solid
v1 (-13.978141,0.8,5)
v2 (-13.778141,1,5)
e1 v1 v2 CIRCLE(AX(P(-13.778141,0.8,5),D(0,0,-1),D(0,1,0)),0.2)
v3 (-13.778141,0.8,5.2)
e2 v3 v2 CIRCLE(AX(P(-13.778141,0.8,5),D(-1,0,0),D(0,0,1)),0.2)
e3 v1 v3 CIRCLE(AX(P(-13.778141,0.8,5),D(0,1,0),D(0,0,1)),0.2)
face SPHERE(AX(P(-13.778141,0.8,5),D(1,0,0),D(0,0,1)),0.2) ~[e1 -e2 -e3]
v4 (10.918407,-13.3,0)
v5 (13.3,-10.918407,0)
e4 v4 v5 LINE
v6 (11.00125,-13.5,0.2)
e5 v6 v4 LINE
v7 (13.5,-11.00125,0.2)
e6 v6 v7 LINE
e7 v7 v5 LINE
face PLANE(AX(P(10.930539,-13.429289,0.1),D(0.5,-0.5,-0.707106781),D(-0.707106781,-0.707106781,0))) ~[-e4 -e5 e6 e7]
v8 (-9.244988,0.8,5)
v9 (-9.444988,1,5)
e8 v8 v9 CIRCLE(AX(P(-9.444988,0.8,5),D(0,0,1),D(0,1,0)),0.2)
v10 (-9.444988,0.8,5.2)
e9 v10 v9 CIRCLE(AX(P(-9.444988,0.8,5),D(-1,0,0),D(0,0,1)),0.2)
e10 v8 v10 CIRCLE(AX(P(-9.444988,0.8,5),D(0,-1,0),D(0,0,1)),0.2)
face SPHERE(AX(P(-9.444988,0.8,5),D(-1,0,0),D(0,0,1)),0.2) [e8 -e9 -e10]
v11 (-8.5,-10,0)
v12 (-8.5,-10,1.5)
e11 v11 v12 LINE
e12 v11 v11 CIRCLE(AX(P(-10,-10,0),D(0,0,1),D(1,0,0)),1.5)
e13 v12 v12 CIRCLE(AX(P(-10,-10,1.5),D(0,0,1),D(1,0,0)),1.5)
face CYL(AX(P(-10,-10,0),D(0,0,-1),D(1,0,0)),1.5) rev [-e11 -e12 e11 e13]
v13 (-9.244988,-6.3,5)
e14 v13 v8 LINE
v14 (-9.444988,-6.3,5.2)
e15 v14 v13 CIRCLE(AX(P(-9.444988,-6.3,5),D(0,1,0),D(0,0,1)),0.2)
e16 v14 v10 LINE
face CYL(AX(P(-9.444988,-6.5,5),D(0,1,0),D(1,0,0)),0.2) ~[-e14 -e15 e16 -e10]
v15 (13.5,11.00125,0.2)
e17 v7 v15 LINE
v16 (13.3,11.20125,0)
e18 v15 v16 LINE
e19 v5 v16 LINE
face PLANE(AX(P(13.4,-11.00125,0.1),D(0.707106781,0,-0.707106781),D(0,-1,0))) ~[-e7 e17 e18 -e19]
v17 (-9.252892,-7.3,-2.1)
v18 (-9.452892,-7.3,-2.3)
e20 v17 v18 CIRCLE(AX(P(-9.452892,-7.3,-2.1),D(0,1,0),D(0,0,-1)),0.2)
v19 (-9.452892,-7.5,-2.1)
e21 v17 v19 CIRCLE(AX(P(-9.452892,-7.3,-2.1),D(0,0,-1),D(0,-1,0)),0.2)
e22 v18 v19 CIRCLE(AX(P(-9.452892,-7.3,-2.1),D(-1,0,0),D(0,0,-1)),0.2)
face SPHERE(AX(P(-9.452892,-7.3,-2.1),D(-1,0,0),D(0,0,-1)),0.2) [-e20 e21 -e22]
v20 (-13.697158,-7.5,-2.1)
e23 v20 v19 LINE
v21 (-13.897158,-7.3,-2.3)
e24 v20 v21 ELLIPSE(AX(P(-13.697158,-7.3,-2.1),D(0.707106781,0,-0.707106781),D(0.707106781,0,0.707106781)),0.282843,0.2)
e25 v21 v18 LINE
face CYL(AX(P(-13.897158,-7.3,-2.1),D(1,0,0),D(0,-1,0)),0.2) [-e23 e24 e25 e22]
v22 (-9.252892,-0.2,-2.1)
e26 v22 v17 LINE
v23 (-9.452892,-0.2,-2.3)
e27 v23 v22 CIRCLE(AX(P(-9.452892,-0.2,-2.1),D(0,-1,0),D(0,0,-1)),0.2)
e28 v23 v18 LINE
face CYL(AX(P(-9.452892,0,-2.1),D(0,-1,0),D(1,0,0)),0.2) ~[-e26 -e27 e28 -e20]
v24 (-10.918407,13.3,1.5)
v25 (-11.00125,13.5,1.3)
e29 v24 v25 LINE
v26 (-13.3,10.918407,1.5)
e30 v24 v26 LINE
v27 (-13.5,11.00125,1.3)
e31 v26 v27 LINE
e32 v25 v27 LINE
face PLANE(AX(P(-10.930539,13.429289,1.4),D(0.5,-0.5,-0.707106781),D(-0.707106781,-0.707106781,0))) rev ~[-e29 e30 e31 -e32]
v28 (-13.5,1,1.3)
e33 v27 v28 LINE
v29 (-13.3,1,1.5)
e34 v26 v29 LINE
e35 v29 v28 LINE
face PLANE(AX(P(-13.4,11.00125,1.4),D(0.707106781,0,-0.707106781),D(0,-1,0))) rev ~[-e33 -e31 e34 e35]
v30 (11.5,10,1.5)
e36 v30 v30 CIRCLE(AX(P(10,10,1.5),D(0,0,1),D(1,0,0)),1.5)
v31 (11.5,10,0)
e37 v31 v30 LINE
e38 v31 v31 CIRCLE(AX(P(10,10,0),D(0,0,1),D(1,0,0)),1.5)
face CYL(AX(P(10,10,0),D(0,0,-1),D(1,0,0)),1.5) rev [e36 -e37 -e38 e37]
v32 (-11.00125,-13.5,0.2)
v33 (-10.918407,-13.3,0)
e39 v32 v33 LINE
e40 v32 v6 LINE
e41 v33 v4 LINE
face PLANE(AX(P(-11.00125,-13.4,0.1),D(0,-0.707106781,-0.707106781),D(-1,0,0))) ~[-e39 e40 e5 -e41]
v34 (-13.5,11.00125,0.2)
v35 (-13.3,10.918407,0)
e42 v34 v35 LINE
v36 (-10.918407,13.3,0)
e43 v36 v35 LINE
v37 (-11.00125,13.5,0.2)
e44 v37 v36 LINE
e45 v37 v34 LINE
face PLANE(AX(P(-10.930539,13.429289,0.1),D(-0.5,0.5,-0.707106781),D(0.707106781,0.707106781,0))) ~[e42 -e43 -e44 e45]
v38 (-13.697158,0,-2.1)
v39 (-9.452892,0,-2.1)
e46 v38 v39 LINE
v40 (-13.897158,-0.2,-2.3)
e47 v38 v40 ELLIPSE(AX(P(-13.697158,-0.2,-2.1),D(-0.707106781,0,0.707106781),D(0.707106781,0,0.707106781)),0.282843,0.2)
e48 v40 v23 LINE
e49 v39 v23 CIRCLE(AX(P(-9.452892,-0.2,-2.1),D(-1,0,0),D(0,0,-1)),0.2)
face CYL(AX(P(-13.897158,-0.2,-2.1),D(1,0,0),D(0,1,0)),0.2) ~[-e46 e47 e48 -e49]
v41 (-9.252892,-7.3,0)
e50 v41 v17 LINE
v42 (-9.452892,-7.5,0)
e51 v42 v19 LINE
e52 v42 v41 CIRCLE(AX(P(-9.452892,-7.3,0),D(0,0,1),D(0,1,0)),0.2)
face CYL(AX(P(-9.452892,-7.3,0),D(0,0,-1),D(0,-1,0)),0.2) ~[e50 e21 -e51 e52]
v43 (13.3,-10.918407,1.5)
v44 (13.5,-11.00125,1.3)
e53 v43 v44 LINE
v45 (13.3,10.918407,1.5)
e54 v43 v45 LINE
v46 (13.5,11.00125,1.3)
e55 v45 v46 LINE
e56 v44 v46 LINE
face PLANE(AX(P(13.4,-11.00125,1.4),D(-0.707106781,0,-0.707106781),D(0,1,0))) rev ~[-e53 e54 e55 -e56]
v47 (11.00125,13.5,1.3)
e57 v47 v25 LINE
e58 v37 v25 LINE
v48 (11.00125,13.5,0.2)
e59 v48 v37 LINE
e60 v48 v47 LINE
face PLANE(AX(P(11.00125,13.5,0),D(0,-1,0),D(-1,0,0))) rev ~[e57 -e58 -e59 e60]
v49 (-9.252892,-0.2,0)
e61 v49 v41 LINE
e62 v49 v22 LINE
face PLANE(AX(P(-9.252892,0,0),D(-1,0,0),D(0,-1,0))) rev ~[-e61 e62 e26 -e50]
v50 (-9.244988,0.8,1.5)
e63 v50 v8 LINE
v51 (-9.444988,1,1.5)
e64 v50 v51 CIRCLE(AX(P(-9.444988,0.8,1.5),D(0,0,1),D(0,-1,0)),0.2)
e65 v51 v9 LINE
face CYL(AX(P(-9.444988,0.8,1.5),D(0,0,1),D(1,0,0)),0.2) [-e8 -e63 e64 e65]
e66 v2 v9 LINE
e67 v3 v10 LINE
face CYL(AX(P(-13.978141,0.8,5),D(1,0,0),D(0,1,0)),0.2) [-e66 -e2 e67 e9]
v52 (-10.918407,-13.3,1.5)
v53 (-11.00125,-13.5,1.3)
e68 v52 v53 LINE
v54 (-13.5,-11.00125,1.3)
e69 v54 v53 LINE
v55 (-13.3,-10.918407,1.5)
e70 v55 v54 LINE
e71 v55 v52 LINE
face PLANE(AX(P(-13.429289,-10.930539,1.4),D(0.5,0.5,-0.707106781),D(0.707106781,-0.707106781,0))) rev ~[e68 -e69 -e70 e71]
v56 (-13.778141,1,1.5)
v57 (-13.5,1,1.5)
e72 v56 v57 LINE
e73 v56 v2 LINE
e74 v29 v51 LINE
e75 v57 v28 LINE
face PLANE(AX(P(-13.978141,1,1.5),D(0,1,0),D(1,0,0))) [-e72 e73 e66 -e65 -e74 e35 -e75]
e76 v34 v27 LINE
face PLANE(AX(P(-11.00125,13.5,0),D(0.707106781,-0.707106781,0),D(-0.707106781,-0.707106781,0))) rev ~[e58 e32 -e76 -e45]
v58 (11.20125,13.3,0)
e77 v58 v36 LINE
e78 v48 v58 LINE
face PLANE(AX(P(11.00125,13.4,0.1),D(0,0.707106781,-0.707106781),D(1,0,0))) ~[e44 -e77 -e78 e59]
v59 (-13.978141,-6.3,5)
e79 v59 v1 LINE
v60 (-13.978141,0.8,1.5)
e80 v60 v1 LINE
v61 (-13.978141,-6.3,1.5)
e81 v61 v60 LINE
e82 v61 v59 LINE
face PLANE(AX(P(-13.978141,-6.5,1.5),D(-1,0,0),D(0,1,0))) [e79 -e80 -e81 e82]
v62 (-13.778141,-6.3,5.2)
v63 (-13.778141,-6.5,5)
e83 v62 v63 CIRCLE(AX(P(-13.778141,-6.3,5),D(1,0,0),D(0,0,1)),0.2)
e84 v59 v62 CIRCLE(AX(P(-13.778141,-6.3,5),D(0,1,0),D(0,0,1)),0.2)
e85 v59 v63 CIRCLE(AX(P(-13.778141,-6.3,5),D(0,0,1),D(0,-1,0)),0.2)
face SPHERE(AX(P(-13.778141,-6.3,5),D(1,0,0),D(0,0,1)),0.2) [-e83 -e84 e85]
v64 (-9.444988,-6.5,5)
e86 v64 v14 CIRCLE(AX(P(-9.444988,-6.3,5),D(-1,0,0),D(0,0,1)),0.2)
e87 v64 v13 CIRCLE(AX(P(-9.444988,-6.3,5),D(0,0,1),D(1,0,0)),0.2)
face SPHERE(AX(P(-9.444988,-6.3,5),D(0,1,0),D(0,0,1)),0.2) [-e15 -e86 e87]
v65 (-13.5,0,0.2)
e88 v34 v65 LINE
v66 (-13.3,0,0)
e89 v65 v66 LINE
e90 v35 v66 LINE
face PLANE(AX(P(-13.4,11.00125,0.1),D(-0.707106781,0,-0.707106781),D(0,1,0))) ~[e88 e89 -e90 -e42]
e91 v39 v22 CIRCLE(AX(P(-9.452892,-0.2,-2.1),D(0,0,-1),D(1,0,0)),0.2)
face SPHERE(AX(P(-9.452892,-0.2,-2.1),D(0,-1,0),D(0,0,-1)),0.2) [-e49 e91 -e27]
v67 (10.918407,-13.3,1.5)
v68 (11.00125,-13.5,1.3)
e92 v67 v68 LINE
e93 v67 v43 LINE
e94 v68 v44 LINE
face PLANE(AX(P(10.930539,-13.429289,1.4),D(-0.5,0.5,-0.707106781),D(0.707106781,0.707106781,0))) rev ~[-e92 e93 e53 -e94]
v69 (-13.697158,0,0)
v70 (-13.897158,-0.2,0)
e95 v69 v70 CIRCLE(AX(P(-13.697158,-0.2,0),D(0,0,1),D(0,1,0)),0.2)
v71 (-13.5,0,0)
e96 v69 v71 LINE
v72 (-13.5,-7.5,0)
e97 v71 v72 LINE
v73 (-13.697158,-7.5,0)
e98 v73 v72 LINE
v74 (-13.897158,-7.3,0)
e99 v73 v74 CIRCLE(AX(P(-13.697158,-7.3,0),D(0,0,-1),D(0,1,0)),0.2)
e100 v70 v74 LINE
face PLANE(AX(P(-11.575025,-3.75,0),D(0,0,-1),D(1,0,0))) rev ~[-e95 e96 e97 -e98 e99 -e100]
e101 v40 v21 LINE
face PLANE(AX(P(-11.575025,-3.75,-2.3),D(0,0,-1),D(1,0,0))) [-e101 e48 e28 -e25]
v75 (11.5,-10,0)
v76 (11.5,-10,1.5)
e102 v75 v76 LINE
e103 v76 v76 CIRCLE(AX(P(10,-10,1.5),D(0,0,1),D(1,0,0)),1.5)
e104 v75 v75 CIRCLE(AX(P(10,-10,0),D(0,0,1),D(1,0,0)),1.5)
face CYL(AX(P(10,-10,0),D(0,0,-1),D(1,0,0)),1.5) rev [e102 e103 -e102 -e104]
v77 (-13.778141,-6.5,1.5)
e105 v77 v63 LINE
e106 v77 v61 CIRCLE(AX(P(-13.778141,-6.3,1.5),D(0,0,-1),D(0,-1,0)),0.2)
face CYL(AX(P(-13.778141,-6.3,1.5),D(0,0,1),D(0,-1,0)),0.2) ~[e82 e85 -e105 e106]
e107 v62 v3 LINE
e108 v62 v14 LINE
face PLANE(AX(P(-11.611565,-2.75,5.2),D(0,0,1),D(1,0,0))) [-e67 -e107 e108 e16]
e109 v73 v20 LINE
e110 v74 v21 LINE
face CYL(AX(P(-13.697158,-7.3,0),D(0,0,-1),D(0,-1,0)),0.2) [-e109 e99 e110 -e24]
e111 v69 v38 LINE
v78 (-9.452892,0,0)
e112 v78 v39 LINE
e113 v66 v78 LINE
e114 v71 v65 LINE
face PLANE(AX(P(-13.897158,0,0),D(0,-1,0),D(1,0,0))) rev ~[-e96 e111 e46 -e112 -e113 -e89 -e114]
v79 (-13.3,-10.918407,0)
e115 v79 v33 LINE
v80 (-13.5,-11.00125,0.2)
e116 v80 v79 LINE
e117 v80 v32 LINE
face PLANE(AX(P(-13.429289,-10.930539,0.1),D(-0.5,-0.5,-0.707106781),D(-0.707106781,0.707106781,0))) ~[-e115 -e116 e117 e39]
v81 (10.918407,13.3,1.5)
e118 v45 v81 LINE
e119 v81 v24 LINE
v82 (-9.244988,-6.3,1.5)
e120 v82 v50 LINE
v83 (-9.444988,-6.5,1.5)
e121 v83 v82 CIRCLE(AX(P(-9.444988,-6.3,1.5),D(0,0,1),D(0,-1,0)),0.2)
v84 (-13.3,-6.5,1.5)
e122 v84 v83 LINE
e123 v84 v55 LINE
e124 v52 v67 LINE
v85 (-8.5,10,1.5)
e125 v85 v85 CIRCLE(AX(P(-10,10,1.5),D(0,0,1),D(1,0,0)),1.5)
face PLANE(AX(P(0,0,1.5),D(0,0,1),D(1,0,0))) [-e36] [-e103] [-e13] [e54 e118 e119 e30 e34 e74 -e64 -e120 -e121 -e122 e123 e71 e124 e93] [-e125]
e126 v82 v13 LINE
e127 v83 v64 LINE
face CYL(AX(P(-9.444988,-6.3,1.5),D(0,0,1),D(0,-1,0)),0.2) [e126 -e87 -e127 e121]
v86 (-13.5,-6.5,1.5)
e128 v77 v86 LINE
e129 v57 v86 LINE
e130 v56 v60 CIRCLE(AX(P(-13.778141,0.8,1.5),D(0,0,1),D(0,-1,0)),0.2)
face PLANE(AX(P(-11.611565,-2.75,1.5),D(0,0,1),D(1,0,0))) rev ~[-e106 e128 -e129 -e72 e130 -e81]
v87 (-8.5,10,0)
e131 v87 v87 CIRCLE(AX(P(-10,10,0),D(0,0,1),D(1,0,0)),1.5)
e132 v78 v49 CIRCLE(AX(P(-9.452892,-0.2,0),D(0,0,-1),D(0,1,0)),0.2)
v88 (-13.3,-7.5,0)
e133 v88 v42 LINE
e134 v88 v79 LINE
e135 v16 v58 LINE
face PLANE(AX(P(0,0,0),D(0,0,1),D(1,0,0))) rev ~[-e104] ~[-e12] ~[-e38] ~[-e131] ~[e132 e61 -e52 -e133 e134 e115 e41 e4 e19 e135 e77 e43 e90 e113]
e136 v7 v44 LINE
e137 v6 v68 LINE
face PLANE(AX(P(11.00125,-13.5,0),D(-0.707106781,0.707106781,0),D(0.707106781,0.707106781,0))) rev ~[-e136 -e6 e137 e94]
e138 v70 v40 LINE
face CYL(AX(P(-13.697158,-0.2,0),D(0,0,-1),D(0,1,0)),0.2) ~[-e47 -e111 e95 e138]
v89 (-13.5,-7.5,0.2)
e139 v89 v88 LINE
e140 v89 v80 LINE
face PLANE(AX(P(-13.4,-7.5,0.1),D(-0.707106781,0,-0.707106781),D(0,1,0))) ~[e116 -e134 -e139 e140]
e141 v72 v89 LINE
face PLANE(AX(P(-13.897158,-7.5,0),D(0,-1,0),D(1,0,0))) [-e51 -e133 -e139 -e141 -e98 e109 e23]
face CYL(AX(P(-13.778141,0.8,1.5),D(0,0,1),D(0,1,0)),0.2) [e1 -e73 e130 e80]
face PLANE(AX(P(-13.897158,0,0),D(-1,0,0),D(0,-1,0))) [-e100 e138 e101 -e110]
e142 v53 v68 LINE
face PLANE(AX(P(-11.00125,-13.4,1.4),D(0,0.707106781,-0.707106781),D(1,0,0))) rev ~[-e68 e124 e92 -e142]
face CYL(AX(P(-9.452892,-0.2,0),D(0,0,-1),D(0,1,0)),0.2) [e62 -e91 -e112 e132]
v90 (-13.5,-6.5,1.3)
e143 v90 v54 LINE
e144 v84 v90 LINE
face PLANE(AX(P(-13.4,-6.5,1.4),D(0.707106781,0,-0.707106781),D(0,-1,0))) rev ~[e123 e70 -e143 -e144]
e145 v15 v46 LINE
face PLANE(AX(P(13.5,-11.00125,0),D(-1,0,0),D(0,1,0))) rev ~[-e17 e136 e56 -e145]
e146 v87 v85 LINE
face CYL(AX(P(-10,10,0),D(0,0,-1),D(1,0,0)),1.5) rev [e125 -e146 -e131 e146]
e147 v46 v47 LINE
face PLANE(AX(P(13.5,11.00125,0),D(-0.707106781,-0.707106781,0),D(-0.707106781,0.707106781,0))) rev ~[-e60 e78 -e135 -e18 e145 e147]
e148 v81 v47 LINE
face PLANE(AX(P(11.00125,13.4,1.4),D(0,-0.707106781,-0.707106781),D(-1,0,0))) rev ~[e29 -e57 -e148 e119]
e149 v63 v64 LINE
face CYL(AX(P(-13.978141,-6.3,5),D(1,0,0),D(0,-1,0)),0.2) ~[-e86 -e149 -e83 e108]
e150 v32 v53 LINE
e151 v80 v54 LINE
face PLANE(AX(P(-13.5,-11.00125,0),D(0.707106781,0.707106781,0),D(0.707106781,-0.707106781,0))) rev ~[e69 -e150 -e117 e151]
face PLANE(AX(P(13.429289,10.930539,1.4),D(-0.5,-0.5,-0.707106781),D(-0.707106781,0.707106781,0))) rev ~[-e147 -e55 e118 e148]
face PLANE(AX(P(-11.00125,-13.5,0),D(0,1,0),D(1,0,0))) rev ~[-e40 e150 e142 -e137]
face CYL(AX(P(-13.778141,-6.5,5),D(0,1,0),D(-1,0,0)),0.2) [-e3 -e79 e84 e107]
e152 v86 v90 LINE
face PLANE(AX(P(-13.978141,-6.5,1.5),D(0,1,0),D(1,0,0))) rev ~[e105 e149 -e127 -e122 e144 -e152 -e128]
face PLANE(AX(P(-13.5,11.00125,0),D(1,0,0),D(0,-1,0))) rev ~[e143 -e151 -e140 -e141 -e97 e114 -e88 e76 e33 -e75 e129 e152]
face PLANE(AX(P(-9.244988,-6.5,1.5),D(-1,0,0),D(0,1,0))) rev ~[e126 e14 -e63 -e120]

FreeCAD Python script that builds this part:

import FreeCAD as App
import Part
import Sketcher

V = App.Vector
Q = App.Units.Quantity


def edges_at(feature, points):
    """Names of the edges that pass closest to the given points."""
    edges = feature.Shape.Edges
    near = lambda p: min(range(len(edges)), key=lambda i: edges[i].distToShape(Part.Vertex(*p))[0])
    return sorted({f"Edge{near(p) + 1}" for p in points})


def add_polygon(sketch, points):
    """Adds a closed chain of lines whose ends are joined by coincident constraints."""
    first, n = sketch.GeometryCount, len(points)
    for a, b in zip(points, points[1:] + points[:1]):
        sketch.addGeometry(Part.LineSegment(App.Vector(*a, 0), App.Vector(*b, 0)), False)
    for i in range(n):
        sketch.addConstraint(Sketcher.Constraint("Coincident", first + i, 2, first + (i + 1) % n, 1))

doc = App.newDocument("Part")
body = doc.addObject("PartDesign::Body", "Body")

# Sketch on XY plane
sketch1 = body.newObject("Sketcher::SketchObject", "Sketch")
sketch1.AttachmentSupport = (doc.getObject("XY_Plane"), [""])
sketch1.MapMode = "FlatFace"
add_polygon(sketch1, [(11, 13.5), (-11, 13.5), (-13.5, 11), (-13.5, -11), (-11, -13.5), (11, -13.5), (13.5, -11), (13.5, 11)])  # lines 0-7
sketch1.addGeometry(Part.Circle(V(-10, -10, 0), V(0, 0, 1), 1.5), False)  # 8
sketch1.addGeometry(Part.Circle(V(10, -10, 0), V(0, 0, 1), 1.5), False)  # 9
sketch1.addGeometry(Part.Circle(V(-10, 10, 0), V(0, 0, 1), 1.5), False)  # 10
sketch1.addGeometry(Part.Circle(V(10, 10, 0), V(0, 0, 1), 1.5), False)  # 11
sketch1.addConstraint(Sketcher.Constraint("Horizontal", 0))
sketch1.addConstraint(Sketcher.Constraint("Vertical", 2))
sketch1.addConstraint(Sketcher.Constraint("Horizontal", 4))
sketch1.addConstraint(Sketcher.Constraint("Vertical", 6))
sketch1.addConstraint(Sketcher.Constraint("Equal", 8, 9))
sketch1.addConstraint(Sketcher.Constraint("Equal", 9, 10))
sketch1.addConstraint(Sketcher.Constraint("Equal", 10, 11))
sketch1.addConstraint(Sketcher.Constraint("Symmetric", 9, 3, 10, 3, -1, 1))
sketch1.addConstraint(Sketcher.Constraint("Symmetric", 8, 3, 11, 3, -1, 1))
sketch1.addConstraint(Sketcher.Constraint("Symmetric", 0, 2, 4, 2, -1, 1))
sketch1.addConstraint(Sketcher.Constraint("Symmetric", 1, 2, 5, 2, -1, 1))
sketch1.addConstraint(Sketcher.Constraint("Symmetric", 8, 3, 9, 3, -2))
sketch1.addConstraint(Sketcher.Constraint("Perpendicular", 1, 3))
sketch1.addConstraint(Sketcher.Constraint("Perpendicular", 5, 7))
sketch1.addConstraint(Sketcher.Constraint("Horizontal", 2, 2, 5, 2))
sketch1.addConstraint(Sketcher.Constraint("Horizontal", 1, 2, 6, 2))
sketch1.addConstraint(Sketcher.Constraint("Vertical", 0, 2, 3, 2))
sketch1.addConstraint(Sketcher.Constraint("Equal", 4, 2))
sketch1.addConstraint(Sketcher.Constraint("Diameter", 8, Q("3 mm")))
sketch1.addConstraint(Sketcher.Constraint("DistanceX", 8, 3, -1, 1, Q("10 mm")))
sketch1.addConstraint(Sketcher.Constraint("DistanceY", 8, 3, -1, 1, Q("10 mm")))
sketch1.addConstraint(Sketcher.Constraint("DistanceY", -1, 1, 0, 2, Q("13.5 mm")))
sketch1.addConstraint(Sketcher.Constraint("DistanceX", 0, 2, 0, 1, Q("22.0025 mm")))
pad1 = body.newObject("PartDesign::Pad", "Pad")
pad1.Profile = sketch1
pad1.Length = 1.5

# Sketch on XY plane
sketch2 = body.newObject("Sketcher::SketchObject", "Sketch001")
sketch2.AttachmentSupport = (doc.getObject("XY_Plane"), [""])
sketch2.MapMode = "FlatFace"
sketch2.AttachmentOffset = App.Placement(V(0, 0, 1.5), App.Rotation())
add_polygon(sketch2, [(-14, 1), (-14, -6.5), (-9.2, -6.5), (-9.2, 1)])  # lines 0-3
sketch2.addConstraint(Sketcher.Constraint("Vertical", 0))
sketch2.addConstraint(Sketcher.Constraint("Horizontal", 1))
sketch2.addConstraint(Sketcher.Constraint("Vertical", 2))
sketch2.addConstraint(Sketcher.Constraint("Horizontal", 3))
sketch2.addConstraint(Sketcher.Constraint("DistanceY", 0, 2, 0, 1, Q("7.5 mm")))
sketch2.addConstraint(Sketcher.Constraint("DistanceY", -1, 1, 2, 2, Q("1 mm")))
sketch2.addConstraint(Sketcher.Constraint("DistanceX", 1, 1, 1, 2, Q("4.733152 mm")))
sketch2.addConstraint(Sketcher.Constraint("DistanceX", 0, 2, -1, 1, Q("13.978141 mm")))
pad2 = body.newObject("PartDesign::Pad", "Pad001")
pad2.Profile = sketch2
pad2.Length = 3.7

# Sketch on XY plane
sketch3 = body.newObject("Sketcher::SketchObject", "Sketch002")
sketch3.AttachmentSupport = (doc.getObject("XY_Plane"), [""])
sketch3.MapMode = "FlatFace"
add_polygon(sketch3, [(-13.9, -7.5), (-13.9, 0), (-9.3, 0), (-9.3, -7.5)])  # lines 0-3
sketch3.addConstraint(Sketcher.Constraint("Vertical", 0))
sketch3.addConstraint(Sketcher.Constraint("Horizontal", 1))
sketch3.addConstraint(Sketcher.Constraint("Vertical", 2))
sketch3.addConstraint(Sketcher.Constraint("Horizontal", 3))
sketch3.addConstraint(Sketcher.Constraint("PointOnObject", 0, 2, -1))
sketch3.addConstraint(Sketcher.Constraint("DistanceY", 0, 1, 0, 2, Q("7.5 mm")))
sketch3.addConstraint(Sketcher.Constraint("DistanceX", 1, 1, 1, 2, Q("4.644266 mm")))
sketch3.addConstraint(Sketcher.Constraint("DistanceX", 1, 2, -1, 1, Q("9.252892 mm")))
pad3 = body.newObject("PartDesign::Pad", "Pad002")
pad3.Profile = sketch3
pad3.Length = 2.3
pad3.Reversed = True
doc.recompute()

fillet = body.newObject("PartDesign::Fillet", "Fillet")
fillet.Base = (pad3, edges_at(pad3, [
    (-11.612, 1, 5.2),
    (-9.245, -2.75, 5.2),
    (-11.612, -6.5, 5.2),
    (-9.245, -6.5, 3.35),
    (-9.245, 1, 3.35),
    (-13.978, -2.75, 5.2),
    (-13.978, -6.5, 3.35),
    (-13.978, 1, 3.35),
]))
fillet.Radius = 0.2
doc.recompute()

chamfer = body.newObject("PartDesign::Chamfer", "Chamfer")
chamfer.Base = (fillet, edges_at(fillet, [
    (0, -13.5, 1.5),
    (-12.251, -12.251, 1.5),
    (-13.5, -8.751, 1.5),
    (12.251, -12.251, 1.5),
    (13.5, 0, 1.5),
    (-13.5, 6.001, 1.5),
    (-12.251, 12.251, 1.5),
    (0, 13.5, 1.5),
    (12.251, 12.251, 1.5),
    (13.5, 0, 0),
    (0, 13.5, 0),
    (-12.251, 12.251, 0),
    (-13.5, 5.501, 0),
    (-13.5, -9.251, 0),
    (-12.251, -12.251, 0),
    (0, -13.5, 0),
    (12.251, -12.251, 0),
]))
chamfer.Size = 0.2
doc.recompute()

fillet2 = body.newObject("PartDesign::Fillet", "Fillet001")
fillet2.Base = (chamfer, edges_at(chamfer, [
    (-11.575, -7.5, -2.3),
    (-9.253, -3.75, -2.3),
    (-11.575, 0, -2.3),
    (-13.897, 0, -1.15),
    (-13.897, -7.5, -1.15),
    (-9.253, -7.5, -1.15),
    (-9.253, 0, -1.15),
]))
fillet2.Radius = 0.2

doc.recompute()
